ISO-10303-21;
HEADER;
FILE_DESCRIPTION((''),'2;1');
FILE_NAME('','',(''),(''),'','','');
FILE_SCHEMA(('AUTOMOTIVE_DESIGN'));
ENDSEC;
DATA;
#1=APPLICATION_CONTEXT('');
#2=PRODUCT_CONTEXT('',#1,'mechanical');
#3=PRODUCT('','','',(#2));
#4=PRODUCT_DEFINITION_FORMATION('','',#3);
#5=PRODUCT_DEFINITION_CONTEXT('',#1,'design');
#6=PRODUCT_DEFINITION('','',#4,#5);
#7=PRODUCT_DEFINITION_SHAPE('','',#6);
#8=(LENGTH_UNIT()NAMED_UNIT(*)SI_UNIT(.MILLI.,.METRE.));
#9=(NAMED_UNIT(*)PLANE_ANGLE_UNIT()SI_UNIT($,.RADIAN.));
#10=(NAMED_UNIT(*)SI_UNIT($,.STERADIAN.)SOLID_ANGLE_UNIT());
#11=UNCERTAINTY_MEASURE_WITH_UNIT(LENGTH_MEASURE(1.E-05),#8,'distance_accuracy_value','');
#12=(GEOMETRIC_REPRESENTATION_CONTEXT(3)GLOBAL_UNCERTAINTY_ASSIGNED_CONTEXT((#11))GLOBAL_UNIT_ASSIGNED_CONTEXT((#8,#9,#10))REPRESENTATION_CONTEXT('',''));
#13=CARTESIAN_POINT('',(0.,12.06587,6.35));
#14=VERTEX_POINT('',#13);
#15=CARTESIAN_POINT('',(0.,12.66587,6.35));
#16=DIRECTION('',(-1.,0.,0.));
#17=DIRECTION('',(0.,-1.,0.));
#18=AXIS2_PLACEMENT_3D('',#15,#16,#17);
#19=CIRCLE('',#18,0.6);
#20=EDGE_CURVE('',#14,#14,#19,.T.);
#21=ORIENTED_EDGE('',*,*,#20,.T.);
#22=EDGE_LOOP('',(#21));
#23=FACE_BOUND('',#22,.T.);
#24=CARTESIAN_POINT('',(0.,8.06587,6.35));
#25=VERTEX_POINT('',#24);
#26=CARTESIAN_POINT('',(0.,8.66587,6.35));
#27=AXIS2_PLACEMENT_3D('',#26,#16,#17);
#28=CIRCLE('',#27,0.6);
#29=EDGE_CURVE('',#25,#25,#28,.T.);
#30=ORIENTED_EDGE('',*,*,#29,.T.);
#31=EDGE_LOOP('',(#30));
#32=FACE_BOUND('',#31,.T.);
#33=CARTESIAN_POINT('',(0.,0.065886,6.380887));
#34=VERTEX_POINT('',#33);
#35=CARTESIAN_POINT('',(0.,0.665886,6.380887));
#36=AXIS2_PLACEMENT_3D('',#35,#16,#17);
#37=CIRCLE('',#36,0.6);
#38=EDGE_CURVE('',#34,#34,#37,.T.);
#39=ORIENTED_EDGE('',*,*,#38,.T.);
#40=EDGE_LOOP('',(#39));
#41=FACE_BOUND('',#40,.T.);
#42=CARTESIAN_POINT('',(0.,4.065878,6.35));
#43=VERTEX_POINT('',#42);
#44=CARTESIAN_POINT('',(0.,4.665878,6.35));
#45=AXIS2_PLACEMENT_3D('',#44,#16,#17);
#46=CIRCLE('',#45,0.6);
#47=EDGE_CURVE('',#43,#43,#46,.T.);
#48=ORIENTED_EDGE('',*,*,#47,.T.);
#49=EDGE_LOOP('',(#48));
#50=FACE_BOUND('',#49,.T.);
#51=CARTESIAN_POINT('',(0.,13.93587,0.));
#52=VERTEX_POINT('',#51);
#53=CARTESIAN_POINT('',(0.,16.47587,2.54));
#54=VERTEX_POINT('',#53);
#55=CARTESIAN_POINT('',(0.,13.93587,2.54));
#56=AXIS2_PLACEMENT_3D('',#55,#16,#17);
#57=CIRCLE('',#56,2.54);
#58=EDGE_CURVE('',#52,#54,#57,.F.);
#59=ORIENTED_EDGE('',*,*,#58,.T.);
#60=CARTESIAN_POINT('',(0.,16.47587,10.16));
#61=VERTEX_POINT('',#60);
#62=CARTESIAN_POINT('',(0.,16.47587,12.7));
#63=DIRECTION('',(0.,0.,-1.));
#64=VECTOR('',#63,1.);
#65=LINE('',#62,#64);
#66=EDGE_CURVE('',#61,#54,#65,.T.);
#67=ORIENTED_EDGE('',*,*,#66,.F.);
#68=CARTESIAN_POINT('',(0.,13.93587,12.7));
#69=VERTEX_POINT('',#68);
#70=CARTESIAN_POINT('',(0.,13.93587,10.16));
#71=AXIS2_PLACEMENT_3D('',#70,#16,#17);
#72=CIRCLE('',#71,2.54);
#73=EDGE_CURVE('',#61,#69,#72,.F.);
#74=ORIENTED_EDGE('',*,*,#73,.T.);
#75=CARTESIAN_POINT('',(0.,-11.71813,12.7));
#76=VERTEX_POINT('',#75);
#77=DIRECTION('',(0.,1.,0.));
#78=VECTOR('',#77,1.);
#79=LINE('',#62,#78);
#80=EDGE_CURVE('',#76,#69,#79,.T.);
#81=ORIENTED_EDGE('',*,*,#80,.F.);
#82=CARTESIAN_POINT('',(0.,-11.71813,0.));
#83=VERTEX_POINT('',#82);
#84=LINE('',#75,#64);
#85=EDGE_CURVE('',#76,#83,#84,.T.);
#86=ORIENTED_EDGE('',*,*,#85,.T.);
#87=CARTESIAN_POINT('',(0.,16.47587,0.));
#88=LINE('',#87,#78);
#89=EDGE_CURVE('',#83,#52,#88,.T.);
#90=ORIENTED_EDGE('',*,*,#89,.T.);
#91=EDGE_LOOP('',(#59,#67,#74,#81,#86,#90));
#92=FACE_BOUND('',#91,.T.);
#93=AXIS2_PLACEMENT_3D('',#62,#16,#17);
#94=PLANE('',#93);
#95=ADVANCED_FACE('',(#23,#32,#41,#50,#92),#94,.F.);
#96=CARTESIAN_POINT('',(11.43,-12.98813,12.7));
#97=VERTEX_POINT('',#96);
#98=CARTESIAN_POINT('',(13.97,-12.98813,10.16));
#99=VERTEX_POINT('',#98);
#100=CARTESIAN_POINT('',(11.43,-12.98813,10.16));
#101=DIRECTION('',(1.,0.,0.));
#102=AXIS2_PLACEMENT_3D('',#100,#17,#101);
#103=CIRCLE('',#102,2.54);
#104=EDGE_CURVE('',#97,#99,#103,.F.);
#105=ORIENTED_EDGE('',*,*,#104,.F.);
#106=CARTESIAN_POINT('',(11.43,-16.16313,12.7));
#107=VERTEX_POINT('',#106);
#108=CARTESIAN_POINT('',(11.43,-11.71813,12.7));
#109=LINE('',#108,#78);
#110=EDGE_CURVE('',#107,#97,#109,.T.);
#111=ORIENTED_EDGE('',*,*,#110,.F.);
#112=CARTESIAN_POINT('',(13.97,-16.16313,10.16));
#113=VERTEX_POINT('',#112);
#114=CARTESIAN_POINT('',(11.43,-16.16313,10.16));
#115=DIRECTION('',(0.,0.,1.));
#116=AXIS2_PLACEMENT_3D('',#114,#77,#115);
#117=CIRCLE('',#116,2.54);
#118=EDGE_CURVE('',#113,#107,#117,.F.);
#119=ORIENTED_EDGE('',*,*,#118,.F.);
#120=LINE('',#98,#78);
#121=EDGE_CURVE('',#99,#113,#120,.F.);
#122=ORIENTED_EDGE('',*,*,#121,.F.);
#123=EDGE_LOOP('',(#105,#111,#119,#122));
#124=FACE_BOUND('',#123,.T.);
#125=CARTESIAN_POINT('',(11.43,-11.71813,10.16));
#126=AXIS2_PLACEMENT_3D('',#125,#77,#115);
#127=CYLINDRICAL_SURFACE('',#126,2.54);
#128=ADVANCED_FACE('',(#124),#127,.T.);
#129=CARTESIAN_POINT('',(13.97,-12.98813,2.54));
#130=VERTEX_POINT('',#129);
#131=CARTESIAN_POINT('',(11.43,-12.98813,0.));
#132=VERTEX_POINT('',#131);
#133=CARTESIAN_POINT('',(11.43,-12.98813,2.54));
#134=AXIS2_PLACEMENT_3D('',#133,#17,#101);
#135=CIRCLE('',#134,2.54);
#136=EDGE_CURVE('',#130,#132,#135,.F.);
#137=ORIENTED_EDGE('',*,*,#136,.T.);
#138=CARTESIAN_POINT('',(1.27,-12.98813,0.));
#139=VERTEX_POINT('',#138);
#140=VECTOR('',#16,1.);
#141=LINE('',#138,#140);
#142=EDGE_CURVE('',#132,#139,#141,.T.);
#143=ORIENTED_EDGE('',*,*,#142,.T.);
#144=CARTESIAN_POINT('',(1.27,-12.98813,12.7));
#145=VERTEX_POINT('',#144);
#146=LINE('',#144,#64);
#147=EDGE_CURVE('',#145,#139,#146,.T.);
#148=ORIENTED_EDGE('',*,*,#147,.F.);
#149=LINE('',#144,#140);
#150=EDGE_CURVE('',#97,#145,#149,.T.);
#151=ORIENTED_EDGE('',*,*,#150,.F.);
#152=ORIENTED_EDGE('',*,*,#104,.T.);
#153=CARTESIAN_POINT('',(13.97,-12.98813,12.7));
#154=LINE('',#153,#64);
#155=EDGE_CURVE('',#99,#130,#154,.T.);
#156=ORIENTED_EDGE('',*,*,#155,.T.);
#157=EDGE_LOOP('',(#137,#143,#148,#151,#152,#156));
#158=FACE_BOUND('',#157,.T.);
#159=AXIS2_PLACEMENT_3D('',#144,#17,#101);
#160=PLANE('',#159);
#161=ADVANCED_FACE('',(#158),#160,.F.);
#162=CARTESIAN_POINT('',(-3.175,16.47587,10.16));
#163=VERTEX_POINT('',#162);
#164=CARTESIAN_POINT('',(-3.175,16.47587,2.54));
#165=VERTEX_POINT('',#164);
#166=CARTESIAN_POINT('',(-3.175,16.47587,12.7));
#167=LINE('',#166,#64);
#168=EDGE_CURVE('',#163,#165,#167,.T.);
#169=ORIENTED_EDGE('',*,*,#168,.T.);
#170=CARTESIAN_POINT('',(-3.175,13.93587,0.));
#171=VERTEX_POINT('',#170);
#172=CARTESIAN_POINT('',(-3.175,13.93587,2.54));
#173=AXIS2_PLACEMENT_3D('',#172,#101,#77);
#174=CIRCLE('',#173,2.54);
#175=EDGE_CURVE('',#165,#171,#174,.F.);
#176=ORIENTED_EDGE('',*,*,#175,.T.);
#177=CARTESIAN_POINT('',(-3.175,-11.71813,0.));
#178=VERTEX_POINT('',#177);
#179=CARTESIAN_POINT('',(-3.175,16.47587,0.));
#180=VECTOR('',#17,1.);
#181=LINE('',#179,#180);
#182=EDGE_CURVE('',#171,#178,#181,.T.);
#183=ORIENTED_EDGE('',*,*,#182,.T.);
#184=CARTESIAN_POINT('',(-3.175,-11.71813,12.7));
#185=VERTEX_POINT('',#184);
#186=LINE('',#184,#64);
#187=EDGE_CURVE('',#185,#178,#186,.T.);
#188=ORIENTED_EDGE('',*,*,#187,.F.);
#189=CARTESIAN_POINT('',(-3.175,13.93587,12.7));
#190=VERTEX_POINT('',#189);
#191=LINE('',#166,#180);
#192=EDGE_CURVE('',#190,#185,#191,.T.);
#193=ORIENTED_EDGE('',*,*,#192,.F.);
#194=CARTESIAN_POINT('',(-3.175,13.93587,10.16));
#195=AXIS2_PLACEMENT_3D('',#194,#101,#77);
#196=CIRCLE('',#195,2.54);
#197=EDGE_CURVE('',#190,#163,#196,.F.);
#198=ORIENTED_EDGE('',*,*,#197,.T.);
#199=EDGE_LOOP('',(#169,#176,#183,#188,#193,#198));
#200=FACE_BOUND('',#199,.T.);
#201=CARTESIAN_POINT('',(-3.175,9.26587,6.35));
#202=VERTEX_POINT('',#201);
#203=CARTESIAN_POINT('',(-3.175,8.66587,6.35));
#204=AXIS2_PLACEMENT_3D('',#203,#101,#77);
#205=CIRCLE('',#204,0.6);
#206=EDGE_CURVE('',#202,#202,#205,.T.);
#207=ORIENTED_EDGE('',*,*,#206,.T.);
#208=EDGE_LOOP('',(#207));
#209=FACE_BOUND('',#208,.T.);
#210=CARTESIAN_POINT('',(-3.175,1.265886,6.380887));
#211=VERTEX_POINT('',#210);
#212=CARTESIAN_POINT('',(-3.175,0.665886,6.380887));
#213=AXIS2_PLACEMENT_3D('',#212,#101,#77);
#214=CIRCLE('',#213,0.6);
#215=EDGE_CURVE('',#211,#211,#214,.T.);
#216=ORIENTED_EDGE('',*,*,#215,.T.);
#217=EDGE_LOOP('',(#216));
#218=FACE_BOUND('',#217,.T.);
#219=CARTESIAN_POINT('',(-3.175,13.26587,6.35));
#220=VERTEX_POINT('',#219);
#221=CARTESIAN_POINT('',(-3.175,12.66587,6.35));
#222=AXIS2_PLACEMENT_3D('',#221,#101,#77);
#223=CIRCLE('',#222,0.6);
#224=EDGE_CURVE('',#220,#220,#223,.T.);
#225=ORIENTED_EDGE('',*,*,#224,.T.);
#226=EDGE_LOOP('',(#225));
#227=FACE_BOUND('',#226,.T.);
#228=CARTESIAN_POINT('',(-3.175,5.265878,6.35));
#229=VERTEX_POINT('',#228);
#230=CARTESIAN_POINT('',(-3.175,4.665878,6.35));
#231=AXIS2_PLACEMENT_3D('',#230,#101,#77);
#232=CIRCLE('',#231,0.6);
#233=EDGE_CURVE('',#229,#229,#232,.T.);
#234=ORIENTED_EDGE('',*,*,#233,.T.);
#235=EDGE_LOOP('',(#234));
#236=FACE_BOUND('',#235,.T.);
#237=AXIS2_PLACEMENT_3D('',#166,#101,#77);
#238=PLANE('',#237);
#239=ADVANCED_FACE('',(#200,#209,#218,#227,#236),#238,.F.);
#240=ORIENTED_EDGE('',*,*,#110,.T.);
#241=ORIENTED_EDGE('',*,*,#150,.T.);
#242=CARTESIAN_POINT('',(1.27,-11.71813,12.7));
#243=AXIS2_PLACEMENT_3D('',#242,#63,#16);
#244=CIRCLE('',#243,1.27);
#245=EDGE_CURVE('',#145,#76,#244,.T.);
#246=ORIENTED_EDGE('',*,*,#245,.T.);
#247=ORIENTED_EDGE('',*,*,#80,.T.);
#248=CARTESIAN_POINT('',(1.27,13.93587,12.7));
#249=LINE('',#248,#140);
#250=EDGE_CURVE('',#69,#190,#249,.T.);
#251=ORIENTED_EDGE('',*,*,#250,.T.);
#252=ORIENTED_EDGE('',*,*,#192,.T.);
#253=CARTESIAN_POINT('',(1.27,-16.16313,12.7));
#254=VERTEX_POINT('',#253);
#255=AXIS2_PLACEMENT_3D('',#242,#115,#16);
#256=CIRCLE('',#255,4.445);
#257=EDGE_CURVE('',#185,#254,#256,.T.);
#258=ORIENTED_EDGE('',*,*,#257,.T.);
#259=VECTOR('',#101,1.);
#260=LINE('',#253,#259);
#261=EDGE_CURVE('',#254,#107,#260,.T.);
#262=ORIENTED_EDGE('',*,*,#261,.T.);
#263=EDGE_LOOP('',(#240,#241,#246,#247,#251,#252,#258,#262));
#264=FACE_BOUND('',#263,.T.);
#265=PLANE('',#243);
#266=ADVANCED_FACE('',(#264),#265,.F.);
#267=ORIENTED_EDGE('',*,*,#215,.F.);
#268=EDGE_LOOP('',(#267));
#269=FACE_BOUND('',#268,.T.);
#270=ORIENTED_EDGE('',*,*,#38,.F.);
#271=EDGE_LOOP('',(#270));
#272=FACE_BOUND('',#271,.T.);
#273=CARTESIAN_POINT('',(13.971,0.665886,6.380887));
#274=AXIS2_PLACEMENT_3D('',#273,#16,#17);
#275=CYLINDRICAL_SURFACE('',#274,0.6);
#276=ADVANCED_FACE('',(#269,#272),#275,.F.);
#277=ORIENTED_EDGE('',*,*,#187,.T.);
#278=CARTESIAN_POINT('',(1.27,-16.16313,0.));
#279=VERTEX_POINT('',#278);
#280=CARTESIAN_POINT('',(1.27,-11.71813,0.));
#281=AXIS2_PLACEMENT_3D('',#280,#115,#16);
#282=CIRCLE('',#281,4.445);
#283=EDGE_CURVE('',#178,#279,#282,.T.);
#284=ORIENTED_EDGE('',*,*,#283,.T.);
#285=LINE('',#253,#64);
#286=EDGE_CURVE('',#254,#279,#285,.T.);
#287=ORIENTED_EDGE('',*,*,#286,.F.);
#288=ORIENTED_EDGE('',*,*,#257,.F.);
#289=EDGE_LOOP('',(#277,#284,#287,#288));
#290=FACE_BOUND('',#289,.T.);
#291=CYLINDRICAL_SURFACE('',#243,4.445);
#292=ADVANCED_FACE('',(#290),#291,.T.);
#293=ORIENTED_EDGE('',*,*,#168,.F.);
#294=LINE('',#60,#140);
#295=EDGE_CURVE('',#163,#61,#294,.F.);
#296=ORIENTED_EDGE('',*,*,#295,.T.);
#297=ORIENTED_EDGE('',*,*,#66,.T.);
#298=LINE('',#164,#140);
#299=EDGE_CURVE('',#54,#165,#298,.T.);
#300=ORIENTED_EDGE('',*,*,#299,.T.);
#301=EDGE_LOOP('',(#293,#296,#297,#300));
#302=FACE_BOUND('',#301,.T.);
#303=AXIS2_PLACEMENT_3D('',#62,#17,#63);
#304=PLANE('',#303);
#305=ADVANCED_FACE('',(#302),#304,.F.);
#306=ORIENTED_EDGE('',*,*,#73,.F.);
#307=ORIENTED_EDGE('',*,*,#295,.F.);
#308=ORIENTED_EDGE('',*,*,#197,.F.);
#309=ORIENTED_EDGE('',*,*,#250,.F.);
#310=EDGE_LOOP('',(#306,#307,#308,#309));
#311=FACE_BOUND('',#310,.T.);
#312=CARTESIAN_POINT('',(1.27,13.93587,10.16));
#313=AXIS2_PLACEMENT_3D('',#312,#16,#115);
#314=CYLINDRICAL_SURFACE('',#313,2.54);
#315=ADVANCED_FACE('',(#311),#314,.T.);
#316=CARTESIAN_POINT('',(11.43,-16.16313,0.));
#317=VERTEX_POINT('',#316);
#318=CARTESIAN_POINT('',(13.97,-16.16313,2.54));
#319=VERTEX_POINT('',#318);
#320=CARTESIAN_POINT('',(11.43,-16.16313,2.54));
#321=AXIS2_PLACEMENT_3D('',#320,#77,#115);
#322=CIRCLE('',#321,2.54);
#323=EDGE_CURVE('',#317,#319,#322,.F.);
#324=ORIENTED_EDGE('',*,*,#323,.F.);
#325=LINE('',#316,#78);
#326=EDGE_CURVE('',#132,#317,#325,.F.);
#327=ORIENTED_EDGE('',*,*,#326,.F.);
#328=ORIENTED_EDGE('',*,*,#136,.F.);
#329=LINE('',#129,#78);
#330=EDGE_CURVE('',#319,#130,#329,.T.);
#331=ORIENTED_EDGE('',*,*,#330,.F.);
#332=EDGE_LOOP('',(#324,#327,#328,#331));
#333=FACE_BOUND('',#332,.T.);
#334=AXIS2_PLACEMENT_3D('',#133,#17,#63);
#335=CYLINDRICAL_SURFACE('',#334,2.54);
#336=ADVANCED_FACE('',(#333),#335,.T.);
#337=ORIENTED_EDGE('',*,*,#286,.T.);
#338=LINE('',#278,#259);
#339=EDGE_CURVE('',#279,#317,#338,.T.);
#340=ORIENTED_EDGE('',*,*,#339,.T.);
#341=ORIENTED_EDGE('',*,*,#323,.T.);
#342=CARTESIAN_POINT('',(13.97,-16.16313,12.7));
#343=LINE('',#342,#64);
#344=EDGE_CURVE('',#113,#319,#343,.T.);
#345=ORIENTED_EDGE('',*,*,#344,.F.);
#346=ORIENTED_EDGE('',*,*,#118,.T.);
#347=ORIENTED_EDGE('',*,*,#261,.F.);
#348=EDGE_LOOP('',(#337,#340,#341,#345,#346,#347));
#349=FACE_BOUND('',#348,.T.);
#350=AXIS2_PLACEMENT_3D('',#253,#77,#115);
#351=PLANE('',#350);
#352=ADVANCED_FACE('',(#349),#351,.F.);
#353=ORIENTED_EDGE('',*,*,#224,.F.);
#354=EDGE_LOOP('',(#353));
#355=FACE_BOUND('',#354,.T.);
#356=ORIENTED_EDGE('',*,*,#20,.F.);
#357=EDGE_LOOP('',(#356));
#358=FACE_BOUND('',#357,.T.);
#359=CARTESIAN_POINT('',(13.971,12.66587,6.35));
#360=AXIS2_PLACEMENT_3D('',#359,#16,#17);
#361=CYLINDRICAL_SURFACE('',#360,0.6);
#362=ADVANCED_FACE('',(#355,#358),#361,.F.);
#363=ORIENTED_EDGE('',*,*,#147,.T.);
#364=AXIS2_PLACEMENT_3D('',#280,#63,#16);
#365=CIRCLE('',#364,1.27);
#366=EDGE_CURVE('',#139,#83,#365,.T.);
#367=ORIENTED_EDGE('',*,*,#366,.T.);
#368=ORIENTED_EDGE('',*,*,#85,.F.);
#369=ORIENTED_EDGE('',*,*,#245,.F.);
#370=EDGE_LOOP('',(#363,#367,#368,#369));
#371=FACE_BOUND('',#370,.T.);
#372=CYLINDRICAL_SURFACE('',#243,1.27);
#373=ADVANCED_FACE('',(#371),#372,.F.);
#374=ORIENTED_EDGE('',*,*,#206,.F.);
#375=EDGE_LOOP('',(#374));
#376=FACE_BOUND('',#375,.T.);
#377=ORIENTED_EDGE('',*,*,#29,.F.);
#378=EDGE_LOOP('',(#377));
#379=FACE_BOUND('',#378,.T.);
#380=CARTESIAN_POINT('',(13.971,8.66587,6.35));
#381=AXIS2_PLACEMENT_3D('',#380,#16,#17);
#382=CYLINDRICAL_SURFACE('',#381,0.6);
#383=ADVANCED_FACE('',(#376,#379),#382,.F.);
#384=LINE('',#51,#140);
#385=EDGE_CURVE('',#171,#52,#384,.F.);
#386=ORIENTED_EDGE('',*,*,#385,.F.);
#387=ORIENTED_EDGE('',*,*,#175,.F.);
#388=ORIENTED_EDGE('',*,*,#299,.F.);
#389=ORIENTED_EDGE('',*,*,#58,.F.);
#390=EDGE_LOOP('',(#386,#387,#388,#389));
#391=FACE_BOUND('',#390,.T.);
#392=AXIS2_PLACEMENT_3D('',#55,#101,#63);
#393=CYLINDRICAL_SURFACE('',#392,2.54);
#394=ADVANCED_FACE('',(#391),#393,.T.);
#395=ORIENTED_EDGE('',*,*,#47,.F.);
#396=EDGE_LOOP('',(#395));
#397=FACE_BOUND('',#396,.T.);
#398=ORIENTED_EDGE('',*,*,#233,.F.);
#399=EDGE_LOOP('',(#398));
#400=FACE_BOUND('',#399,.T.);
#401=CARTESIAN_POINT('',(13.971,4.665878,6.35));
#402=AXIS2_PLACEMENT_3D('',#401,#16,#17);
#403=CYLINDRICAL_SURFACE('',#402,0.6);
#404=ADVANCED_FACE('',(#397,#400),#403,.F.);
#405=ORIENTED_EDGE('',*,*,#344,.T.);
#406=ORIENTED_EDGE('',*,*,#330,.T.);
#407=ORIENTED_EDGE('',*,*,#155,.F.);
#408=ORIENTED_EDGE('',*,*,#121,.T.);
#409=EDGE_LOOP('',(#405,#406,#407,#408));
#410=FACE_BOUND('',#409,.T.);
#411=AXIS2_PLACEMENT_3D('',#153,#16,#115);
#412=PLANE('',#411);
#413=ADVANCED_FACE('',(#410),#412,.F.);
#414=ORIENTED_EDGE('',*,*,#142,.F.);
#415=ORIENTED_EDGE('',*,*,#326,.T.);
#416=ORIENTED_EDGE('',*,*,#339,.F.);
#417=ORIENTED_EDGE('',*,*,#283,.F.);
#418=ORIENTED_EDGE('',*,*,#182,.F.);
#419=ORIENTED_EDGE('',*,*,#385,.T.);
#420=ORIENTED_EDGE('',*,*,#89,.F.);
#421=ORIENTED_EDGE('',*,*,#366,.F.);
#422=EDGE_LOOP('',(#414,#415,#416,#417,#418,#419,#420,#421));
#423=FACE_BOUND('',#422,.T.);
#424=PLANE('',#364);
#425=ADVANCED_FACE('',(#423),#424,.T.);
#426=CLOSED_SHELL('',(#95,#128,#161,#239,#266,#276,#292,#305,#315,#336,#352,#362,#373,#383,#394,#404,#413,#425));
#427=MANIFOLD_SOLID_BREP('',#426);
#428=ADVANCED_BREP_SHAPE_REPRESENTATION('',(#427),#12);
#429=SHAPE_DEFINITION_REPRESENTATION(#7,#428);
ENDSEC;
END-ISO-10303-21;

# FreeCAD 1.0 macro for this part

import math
import FreeCAD as App
import Part
import Sketcher
from FreeCAD import Vector
Q = App.Units.Quantity


def edges_at(feature, points):
    """Names of the edges that pass closest to the given points."""
    edges = feature.Shape.Edges
    near = lambda p: min(range(len(edges)), key=lambda i: edges[i].distToShape(Part.Vertex(*p))[0])
    return sorted({f"Edge{near(p) + 1}" for p in points})

doc = App.newDocument("Part")
body = doc.addObject("PartDesign::Body", "Body")

sketch1 = doc.addObject("Sketcher::SketchObject", "Sketch")
body.addObject(sketch1)
sketch1.AttachmentSupport = (doc.XY_Plane, [""])
sketch1.MapMode = "FlatFace"
sketch1.addGeometry([
    Part.LineSegment(Vector(0, -11.7, 0), Vector(0, 16.5, 0)),
    Part.LineSegment(Vector(0, 16.5, 0), Vector(-3.2, 16.5, 0)),
    Part.LineSegment(Vector(-3.2, 16.5, 0), Vector(-3.2, -11.7, 0)),
    Part.ArcOfCircle(Part.Circle(Vector(1.3, -11.7, 0), Vector(0, 0, 1), 4.4), math.radians(-180), math.radians(-90)),
    Part.LineSegment(Vector(1.3, -16.2, 0), Vector(14, -16.2, 0)),
    Part.LineSegment(Vector(14, -16.2, 0), Vector(14, -13, 0)),
    Part.LineSegment(Vector(14, -13, 0), Vector(1.3, -13, 0)),
    Part.ArcOfCircle(Part.Circle(Vector(1.3, -11.7, 0), Vector(0, 0, 1), 1.3), math.radians(180), math.radians(270)),
], False)
sketch1.addConstraint([
    Sketcher.Constraint("Coincident", 0, 2, 1, 1),
    Sketcher.Constraint("Coincident", 1, 2, 2, 1),
    Sketcher.Constraint("Tangent", 2, 2, 3, 1),
    Sketcher.Constraint("Tangent", 3, 2, 4, 1),
    Sketcher.Constraint("Coincident", 4, 2, 5, 1),
    Sketcher.Constraint("Coincident", 5, 2, 6, 1),
    Sketcher.Constraint("Tangent", 6, 2, 7, 2),
    Sketcher.Constraint("Tangent", 7, 1, 0, 1),
    Sketcher.Constraint("Vertical", 0),
    Sketcher.Constraint("Horizontal", 1),
    Sketcher.Constraint("Vertical", 2),
    Sketcher.Constraint("Horizontal", 4),
    Sketcher.Constraint("Vertical", 5),
    Sketcher.Constraint("Horizontal", 6),
    Sketcher.Constraint("Coincident", 7, 3, 3, 3),
    Sketcher.Constraint("PointOnObject", 0, 2, -2),
    Sketcher.Constraint("Radius", 7, Q("0.05 in")),
    Sketcher.Constraint("DistanceX", 4, 1, 4, 2, Q("0.5 in")),
    Sketcher.Constraint("Radius", 3, Q("0.175 in")),
    Sketcher.Constraint("DistanceY", 0, 1, 0, 2, Q("1.11 in")),
    Sketcher.Constraint("DistanceY", 3, 3, -1, 1, Q("11.71813 mm")),
])
pad1 = doc.addObject("PartDesign::Pad", "Pad")
body.addObject(pad1)
pad1.Profile = sketch1
pad1.Length = Q("0.5 in")

sketch2 = doc.addObject("Sketcher::SketchObject", "Sketch001")
body.addObject(sketch2)
sketch2.AttachmentSupport = (doc.YZ_Plane, [""])
sketch2.MapMode = "FlatFace"
sketch2.AttachmentOffset = App.Placement(Vector(0, 0, -0.125 * 25.4), App.Rotation())
sketch2.addGeometry([
    Part.Circle(Vector(0.7, 6.4, 0), Vector(0, 0, 1), 0.6),
    Part.Circle(Vector(4.7, 6.3, 0), Vector(0, 0, 1), 0.6),
    Part.Circle(Vector(8.7, 6.3, 0), Vector(0, 0, 1), 0.6),
    Part.Circle(Vector(12.7, 6.3, 0), Vector(0, 0, 1), 0.6),
], False)
sketch2.addConstraint([
    Sketcher.Constraint("Equal", 0, 1),
    Sketcher.Constraint("Equal", 1, 2),
    Sketcher.Constraint("Equal", 2, 3),
    Sketcher.Constraint("Horizontal", 1, 3, 2, 3),
    Sketcher.Constraint("Horizontal", 2, 3, 3, 3),
    Sketcher.Constraint("Diameter", 0, Q("1.2 mm")),
    Sketcher.Constraint("DistanceY", -1, 1, 1, 3, Q("0.25 in")),
    Sketcher.Constraint("DistanceX", 2, 3, 3, 3, Q("4 mm")),
    Sketcher.Constraint("DistanceX", -1, 1, 2, 3, Q("8.66587 mm")),
    Sketcher.Constraint("DistanceX", 0, 3, 1, 3, Q("3.999992 mm")),
    Sketcher.Constraint("DistanceX", -1, 1, 0, 3, Q("0.665886 mm")),
    Sketcher.Constraint("DistanceY", -1, 1, 0, 3, Q("6.380887 mm")),
])
pocket1 = doc.addObject("PartDesign::Pocket", "Pocket")
body.addObject(pocket1)
pocket1.Profile = sketch2
pocket1.Length = Q("0.125 in")
pocket1.Reversed = True
doc.recompute()

fillet = doc.addObject("PartDesign::Fillet", "Fillet")
body.addObject(fillet)
fillet.Base = (pocket1, edges_at(pocket1, [
    (-1.587, 16.476, 0),
    (13.97, -14.576, 12.7),
    (-1.587, 16.476, 12.7),
    (13.97, -14.576, 0),
]))
fillet.Radius = Q("0.1 in")

doc.recompute()
